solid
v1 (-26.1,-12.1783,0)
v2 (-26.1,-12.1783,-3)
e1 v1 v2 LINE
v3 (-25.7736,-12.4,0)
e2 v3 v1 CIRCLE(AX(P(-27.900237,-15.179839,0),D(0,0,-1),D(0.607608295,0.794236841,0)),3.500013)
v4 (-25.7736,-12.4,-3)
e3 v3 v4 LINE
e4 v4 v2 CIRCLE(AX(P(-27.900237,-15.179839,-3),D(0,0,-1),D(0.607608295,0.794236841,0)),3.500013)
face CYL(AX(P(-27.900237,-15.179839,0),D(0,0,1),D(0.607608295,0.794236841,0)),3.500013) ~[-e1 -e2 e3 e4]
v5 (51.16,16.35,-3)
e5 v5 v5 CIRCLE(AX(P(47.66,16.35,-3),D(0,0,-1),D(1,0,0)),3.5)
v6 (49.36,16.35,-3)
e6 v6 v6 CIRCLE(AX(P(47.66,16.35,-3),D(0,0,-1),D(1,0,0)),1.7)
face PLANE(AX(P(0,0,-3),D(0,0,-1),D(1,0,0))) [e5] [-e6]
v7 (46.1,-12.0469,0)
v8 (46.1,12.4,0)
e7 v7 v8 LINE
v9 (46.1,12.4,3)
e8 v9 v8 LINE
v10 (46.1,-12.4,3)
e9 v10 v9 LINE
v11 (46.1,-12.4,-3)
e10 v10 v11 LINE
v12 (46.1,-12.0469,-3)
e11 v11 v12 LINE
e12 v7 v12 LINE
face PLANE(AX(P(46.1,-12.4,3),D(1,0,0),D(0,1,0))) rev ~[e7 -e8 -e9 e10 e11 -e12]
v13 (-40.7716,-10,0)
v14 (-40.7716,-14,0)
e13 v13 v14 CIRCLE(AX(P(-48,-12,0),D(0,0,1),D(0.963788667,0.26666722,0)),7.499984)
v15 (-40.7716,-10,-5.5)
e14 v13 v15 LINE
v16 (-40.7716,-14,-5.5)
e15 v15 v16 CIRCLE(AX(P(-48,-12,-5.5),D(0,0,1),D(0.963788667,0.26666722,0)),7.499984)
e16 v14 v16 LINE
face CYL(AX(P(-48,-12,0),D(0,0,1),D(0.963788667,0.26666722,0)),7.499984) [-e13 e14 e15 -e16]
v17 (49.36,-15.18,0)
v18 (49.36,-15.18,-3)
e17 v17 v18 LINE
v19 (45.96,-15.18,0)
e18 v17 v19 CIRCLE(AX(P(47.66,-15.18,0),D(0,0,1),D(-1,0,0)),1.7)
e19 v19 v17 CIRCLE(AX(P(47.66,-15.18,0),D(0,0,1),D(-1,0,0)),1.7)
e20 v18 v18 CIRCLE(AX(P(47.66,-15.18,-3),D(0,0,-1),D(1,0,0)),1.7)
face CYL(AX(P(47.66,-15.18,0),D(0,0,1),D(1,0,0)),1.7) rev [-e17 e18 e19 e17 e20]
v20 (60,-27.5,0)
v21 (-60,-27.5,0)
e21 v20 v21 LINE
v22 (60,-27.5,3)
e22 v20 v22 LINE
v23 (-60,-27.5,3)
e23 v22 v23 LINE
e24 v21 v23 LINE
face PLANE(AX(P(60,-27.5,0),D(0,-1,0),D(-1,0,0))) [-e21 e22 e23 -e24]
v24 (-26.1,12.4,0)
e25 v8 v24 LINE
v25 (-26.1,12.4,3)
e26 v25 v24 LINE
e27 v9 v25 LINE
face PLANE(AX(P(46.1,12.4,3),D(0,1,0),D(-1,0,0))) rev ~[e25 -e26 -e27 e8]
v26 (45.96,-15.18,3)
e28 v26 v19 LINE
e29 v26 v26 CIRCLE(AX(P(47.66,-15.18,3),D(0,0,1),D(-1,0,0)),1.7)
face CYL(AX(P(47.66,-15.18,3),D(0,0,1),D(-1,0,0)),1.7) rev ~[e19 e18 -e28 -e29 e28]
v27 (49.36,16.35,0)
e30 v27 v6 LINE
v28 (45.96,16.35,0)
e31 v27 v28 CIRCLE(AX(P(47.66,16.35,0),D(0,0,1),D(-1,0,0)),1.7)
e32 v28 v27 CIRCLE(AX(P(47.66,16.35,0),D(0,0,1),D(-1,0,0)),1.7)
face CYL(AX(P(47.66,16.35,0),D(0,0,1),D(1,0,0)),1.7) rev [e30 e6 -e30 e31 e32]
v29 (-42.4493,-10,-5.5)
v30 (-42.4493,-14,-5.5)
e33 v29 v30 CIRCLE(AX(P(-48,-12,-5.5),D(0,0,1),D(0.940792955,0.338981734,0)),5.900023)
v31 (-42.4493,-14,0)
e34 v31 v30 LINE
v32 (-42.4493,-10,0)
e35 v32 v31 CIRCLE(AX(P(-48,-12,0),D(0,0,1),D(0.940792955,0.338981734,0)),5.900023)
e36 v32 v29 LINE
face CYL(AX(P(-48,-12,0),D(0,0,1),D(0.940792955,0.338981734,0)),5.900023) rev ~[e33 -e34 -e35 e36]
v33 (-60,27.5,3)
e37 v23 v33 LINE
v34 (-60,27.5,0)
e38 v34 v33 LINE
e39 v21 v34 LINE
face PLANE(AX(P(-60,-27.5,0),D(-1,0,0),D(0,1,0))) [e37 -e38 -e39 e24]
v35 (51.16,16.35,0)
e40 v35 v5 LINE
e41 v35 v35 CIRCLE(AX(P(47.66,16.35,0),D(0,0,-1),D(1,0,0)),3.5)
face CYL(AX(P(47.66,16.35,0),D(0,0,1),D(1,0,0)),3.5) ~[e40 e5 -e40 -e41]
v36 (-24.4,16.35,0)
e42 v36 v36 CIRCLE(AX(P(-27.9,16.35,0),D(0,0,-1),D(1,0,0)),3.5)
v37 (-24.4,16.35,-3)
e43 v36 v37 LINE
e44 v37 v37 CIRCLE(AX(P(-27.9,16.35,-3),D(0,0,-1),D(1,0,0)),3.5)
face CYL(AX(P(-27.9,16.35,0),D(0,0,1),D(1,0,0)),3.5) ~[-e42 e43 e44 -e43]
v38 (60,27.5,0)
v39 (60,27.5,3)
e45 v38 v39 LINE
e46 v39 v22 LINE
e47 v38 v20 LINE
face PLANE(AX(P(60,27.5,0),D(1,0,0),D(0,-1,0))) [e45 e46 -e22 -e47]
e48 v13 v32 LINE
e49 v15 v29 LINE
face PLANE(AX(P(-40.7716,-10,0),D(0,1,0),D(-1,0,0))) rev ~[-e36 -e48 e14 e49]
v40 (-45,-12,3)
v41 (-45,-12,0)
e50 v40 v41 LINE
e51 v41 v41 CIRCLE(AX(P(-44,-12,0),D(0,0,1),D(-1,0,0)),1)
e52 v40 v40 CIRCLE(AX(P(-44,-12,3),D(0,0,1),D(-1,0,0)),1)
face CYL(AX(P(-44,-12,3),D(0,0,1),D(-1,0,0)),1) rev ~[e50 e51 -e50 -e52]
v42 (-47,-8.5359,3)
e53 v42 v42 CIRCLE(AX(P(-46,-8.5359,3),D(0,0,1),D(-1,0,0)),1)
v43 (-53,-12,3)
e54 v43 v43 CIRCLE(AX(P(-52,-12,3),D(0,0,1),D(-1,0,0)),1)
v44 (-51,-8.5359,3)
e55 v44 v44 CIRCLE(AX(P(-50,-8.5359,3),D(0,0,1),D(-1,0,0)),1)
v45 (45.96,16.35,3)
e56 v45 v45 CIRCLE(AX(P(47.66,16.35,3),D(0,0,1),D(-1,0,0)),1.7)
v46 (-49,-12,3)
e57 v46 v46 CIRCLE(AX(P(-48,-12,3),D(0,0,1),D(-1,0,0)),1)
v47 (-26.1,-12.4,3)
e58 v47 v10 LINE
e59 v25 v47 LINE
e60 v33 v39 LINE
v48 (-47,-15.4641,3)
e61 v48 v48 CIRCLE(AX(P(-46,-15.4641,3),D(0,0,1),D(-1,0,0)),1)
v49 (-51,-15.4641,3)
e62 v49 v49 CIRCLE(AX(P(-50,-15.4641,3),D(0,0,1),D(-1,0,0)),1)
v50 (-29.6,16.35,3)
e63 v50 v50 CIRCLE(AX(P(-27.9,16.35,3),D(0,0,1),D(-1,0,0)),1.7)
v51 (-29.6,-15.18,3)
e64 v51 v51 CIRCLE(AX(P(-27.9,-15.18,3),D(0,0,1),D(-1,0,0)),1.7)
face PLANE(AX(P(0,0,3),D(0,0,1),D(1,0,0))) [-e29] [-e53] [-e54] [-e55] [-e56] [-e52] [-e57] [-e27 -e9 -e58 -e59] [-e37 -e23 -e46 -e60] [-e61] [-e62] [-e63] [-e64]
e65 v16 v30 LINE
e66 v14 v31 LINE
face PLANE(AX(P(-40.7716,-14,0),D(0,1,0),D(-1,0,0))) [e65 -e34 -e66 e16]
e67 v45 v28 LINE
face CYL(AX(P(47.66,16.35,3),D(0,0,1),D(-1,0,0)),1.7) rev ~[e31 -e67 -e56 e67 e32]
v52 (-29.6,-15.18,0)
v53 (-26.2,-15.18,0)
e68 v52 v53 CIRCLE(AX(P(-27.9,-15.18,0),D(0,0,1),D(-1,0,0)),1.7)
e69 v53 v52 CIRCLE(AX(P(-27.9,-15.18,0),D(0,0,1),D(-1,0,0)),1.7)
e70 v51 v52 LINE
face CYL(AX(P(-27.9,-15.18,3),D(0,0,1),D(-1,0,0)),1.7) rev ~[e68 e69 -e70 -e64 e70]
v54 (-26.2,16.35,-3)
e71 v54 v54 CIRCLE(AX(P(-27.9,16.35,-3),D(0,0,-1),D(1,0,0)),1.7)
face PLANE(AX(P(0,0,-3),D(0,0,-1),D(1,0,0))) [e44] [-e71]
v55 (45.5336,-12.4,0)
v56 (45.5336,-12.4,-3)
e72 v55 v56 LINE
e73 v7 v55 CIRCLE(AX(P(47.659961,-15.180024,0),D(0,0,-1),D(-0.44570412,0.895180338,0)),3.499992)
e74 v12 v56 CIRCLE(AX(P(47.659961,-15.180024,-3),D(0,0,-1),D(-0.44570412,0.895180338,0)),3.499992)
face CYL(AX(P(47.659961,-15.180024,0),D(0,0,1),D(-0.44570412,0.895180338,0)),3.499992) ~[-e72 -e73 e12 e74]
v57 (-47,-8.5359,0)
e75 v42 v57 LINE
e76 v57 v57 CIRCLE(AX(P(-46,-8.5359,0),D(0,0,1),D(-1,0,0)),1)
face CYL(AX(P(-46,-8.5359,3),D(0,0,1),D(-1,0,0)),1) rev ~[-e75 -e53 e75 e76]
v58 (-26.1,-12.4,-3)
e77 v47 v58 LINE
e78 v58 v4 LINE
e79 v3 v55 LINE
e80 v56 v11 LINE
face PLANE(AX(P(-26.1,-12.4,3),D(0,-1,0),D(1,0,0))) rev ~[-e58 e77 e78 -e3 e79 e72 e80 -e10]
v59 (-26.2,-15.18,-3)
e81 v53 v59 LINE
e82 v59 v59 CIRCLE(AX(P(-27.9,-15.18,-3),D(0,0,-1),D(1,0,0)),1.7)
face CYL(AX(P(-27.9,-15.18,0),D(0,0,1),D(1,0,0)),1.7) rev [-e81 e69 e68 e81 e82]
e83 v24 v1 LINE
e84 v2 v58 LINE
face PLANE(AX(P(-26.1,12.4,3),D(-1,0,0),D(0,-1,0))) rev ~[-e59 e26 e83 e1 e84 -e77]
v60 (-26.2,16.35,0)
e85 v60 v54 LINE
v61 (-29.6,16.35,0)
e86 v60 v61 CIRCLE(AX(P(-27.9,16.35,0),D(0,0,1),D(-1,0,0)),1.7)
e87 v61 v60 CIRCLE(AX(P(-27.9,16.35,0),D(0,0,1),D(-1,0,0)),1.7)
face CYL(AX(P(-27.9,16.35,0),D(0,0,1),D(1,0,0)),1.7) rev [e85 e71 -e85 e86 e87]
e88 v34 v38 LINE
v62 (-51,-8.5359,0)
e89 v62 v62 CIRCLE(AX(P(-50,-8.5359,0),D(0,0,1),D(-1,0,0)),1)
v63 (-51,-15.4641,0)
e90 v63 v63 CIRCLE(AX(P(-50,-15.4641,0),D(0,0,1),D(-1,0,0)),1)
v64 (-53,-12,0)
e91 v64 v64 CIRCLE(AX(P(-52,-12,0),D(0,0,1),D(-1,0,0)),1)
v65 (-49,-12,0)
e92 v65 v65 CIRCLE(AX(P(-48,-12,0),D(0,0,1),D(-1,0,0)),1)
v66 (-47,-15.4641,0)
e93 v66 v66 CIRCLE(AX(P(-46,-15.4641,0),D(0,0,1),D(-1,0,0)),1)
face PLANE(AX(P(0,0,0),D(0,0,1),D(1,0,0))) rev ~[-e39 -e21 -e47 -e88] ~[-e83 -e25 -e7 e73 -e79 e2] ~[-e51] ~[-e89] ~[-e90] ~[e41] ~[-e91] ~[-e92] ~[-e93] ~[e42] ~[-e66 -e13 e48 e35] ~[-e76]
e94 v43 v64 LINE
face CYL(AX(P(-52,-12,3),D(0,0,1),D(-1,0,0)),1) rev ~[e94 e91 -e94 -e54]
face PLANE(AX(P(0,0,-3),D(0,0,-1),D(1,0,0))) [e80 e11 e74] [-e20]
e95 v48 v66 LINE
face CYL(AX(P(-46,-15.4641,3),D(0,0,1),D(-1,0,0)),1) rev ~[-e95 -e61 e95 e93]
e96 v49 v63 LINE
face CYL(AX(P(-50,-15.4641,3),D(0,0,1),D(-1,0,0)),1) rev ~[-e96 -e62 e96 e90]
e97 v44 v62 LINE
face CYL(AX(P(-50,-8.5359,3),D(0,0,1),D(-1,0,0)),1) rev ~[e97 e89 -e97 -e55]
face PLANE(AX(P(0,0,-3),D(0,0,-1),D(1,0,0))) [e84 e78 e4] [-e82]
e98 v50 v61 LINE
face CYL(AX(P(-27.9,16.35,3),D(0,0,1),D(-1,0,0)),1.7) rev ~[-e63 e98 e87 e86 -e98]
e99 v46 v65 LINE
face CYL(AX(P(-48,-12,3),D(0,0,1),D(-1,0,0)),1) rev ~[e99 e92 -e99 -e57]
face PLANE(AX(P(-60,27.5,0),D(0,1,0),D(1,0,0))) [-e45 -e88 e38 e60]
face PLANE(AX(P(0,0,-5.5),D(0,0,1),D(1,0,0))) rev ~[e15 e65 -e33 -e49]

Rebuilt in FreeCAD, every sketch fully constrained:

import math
import FreeCAD as App
import Part
import Sketcher

V = App.Vector


def add_polygon(sketch, points):
    """Adds a closed chain of lines whose ends are joined by coincident constraints."""
    first, n = sketch.GeometryCount, len(points)
    for a, b in zip(points, points[1:] + points[:1]):
        sketch.addGeometry(Part.LineSegment(App.Vector(*a, 0), App.Vector(*b, 0)), False)
    for i in range(n):
        sketch.addConstraint(Sketcher.Constraint("Coincident", first + i, 2, first + (i + 1) % n, 1))

doc = App.newDocument("Part")
body = doc.addObject("PartDesign::Body", "Body")

# Sketch on XY plane
sketch1 = doc.addObject("Sketcher::SketchObject", "Sketch")
body.addObject(sketch1)
sketch1.AttachmentSupport = (doc.XY_Plane, [""])
sketch1.MapMode = "FlatFace"
add_polygon(sketch1, [(-60, -28), (60, -28), (60, 28), (-60, 28)])  # lines 0-3
sketch1.addConstraint(Sketcher.Constraint("Horizontal", 0))
sketch1.addConstraint(Sketcher.Constraint("Vertical", 1))
sketch1.addConstraint(Sketcher.Constraint("Horizontal", 2))
sketch1.addConstraint(Sketcher.Constraint("Vertical", 3))
sketch1.addConstraint(Sketcher.Constraint("Symmetric", 0, 2, 2, 2, -1, 1))
sketch1.addConstraint(Sketcher.Constraint("DistanceX", 0, 1, 0, 2, 120.0))
sketch1.addConstraint(Sketcher.Constraint("DistanceY", 1, 1, 1, 2, 55.0))
pad1 = doc.addObject("PartDesign::Pad", "Pad")
body.addObject(pad1)
pad1.Profile = sketch1
pad1.Length = 3

# Sketch on XY plane
sketch2 = doc.addObject("Sketcher::SketchObject", "Sketch001")
body.addObject(sketch2)
sketch2.AttachmentSupport = (doc.XY_Plane, [""])
sketch2.MapMode = "FlatFace"
sketch2.AttachmentOffset = App.Placement(V(0, 0, 3), App.Rotation())
add_polygon(sketch2, [(-26, 12), (-26, -12), (46, -12), (46, 12)])  # lines 0-3
sketch2.addConstraint(Sketcher.Constraint("Vertical", 0))
sketch2.addConstraint(Sketcher.Constraint("Horizontal", 1))
sketch2.addConstraint(Sketcher.Constraint("Vertical", 2))
sketch2.addConstraint(Sketcher.Constraint("Horizontal", 3))
sketch2.addConstraint(Sketcher.Constraint("DistanceX", 1, 1, 1, 2, 72.2))
sketch2.addConstraint(Sketcher.Constraint("DistanceY", 0, 2, 0, 1, 24.8))
sketch2.addConstraint(Sketcher.Constraint("DistanceX", 0, 2, -1, 1, 26.1))
sketch2.addConstraint(Sketcher.Constraint("DistanceY", 0, 2, -1, 1, 12.4))
pocket1 = doc.addObject("PartDesign::Pocket", "Pocket")
body.addObject(pocket1)
pocket1.Profile = sketch2
pocket1.Type = "ThroughAll"

# Sketch on XY plane
sketch3 = doc.addObject("Sketcher::SketchObject", "Sketch002")
body.addObject(sketch3)
sketch3.AttachmentSupport = (doc.XY_Plane, [""])
sketch3.MapMode = "FlatFace"
sketch3.AttachmentOffset = App.Placement(V(0, 0, 3), App.Rotation())
sketch3.addGeometry(Part.Circle(V(-27.9, 16.4, 0), V(0, 0, 1), 1.7), False)
sketch3.addGeometry(Part.Circle(V(47.7, 16.4, 0), V(0, 0, 1), 1.7), False)
sketch3.addGeometry(Part.Circle(V(-27.9, -15.2, 0), V(0, 0, 1), 1.7), False)
sketch3.addGeometry(Part.Circle(V(47.7, -15.2, 0), V(0, 0, 1), 1.7), False)
sketch3.addConstraint(Sketcher.Constraint("Equal", 0, 1))
sketch3.addConstraint(Sketcher.Constraint("Equal", 1, 2))
sketch3.addConstraint(Sketcher.Constraint("Equal", 2, 3))
sketch3.addConstraint(Sketcher.Constraint("Horizontal", 0, 3, 1, 3))
sketch3.addConstraint(Sketcher.Constraint("Horizontal", 2, 3, 3, 3))
sketch3.addConstraint(Sketcher.Constraint("Vertical", 0, 3, 2, 3))
sketch3.addConstraint(Sketcher.Constraint("Vertical", 1, 3, 3, 3))
sketch3.addConstraint(Sketcher.Constraint("Diameter", 0, 3.4))
sketch3.addConstraint(Sketcher.Constraint("DistanceX", 0, 3, -1, 1, 27.9))
sketch3.addConstraint(Sketcher.Constraint("DistanceY", -1, 1, 0, 3, 16.35))
sketch3.addConstraint(Sketcher.Constraint("DistanceX", 0, 3, 1, 3, 75.56))
sketch3.addConstraint(Sketcher.Constraint("DistanceY", 2, 3, 0, 3, 31.53))
pocket2 = doc.addObject("PartDesign::Pocket", "Pocket001")
body.addObject(pocket2)
pocket2.Profile = sketch3
pocket2.Type = "ThroughAll"

# Sketch on XY plane
sketch4 = doc.addObject("Sketcher::SketchObject", "Sketch003")
body.addObject(sketch4)
sketch4.AttachmentSupport = (doc.XY_Plane, [""])
sketch4.MapMode = "FlatFace"
sketch4.AttachmentOffset = App.Placement(V(0, 0, 3), App.Rotation())
sketch4.addGeometry(Part.Circle(V(-48, -12, 0), V(0, 0, 1), 1), False)
sketch4.addGeometry(Part.Circle(V(-44, -12, 0), V(0, 0, 1), 1), False)
sketch4.addGeometry(Part.Circle(V(-46, -8.5, 0), V(0, 0, 1), 1), False)
sketch4.addGeometry(Part.Circle(V(-50, -8.5, 0), V(0, 0, 1), 1), False)
sketch4.addGeometry(Part.Circle(V(-52, -12, 0), V(0, 0, 1), 1), False)
sketch4.addGeometry(Part.Circle(V(-50, -15.5, 0), V(0, 0, 1), 1), False)
sketch4.addGeometry(Part.Circle(V(-46, -15.5, 0), V(0, 0, 1), 1), False)
sketch4.addConstraint(Sketcher.Constraint("Equal", 0, 1))
sketch4.addConstraint(Sketcher.Constraint("Equal", 1, 2))
sketch4.addConstraint(Sketcher.Constraint("Equal", 2, 3))
sketch4.addConstraint(Sketcher.Constraint("Equal", 3, 4))
sketch4.addConstraint(Sketcher.Constraint("Equal", 4, 5))
sketch4.addConstraint(Sketcher.Constraint("Equal", 5, 6))
sketch4.addConstraint(Sketcher.Constraint("Horizontal", 0, 3, 1, 3))
sketch4.addConstraint(Sketcher.Constraint("Horizontal", 2, 3, 3, 3))
sketch4.addConstraint(Sketcher.Constraint("Horizontal", 1, 3, 4, 3))
sketch4.addConstraint(Sketcher.Constraint("Horizontal", 5, 3, 6, 3))
sketch4.addConstraint(Sketcher.Constraint("Vertical", 3, 3, 5, 3))
sketch4.addConstraint(Sketcher.Constraint("Vertical", 2, 3, 6, 3))
sketch4.addConstraint(Sketcher.Constraint("Diameter", 0, 2.0))
sketch4.addConstraint(Sketcher.Constraint("DistanceX", 0, 3, -1, 1, 48.0))
sketch4.addConstraint(Sketcher.Constraint("DistanceY", 0, 3, -1, 1, 12.0))
sketch4.addConstraint(Sketcher.Constraint("DistanceX", 0, 3, 1, 3, 4.0))
sketch4.addConstraint(Sketcher.Constraint("DistanceX", 0, 3, 2, 3, 2.0))
sketch4.addConstraint(Sketcher.Constraint("DistanceX", 3, 3, 0, 3, 2.0))
sketch4.addConstraint(Sketcher.Constraint("DistanceX", 4, 3, 3, 3, 2.0))
sketch4.addConstraint(Sketcher.Constraint("DistanceY", 2, 3, -1, 1, 8.536))
sketch4.addConstraint(Sketcher.Constraint("DistanceY", 5, 3, -1, 1, 15.464))
pocket3 = doc.addObject("PartDesign::Pocket", "Pocket002")
body.addObject(pocket3)
pocket3.Profile = sketch4
pocket3.Type = "ThroughAll"

# Sketch on XY plane
sketch5 = doc.addObject("Sketcher::SketchObject", "Sketch004")
body.addObject(sketch5)
sketch5.AttachmentSupport = (doc.XY_Plane, [""])
sketch5.MapMode = "FlatFace"
sketch5.addGeometry(Part.LineSegment(V(-42.4, -10, 0), V(-40.8, -10, 0)), False)
sketch5.addGeometry(Part.ArcOfCircle(Part.Circle(V(-48, -12, 0), V(0, 0, 1), 7.5), math.radians(15), math.radians(345)), False)
sketch5.addGeometry(Part.LineSegment(V(-40.8, -14, 0), V(-42.4, -14, 0)), False)
sketch5.addGeometry(Part.ArcOfCircle(Part.Circle(V(-48, -12, 0), V(0, 0, 1), 5.9), math.radians(20), math.radians(340)), False)
sketch5.addConstraint(Sketcher.Constraint("Coincident", 0, 2, 1, 1))
sketch5.addConstraint(Sketcher.Constraint("Coincident", 1, 2, 2, 1))
sketch5.addConstraint(Sketcher.Constraint("Coincident", 2, 2, 3, 2))
sketch5.addConstraint(Sketcher.Constraint("Coincident", 3, 1, 0, 1))
sketch5.addConstraint(Sketcher.Constraint("Horizontal", 0))
sketch5.addConstraint(Sketcher.Constraint("Horizontal", 2))
sketch5.addConstraint(Sketcher.Constraint("Coincident", 3, 3, 1, 3))
sketch5.addConstraint(Sketcher.Constraint("Vertical", 0, 2, 1, 2))
sketch5.addConstraint(Sketcher.Constraint("Radius", 1, 7.5))
sketch5.addConstraint(Sketcher.Constraint("Radius", 3, 5.9))
sketch5.addConstraint(Sketcher.Constraint("DistanceX", 1, 3, -1, 1, 48.0))
sketch5.addConstraint(Sketcher.Constraint("DistanceY", 1, 3, -1, 1, 12.0))
sketch5.addConstraint(Sketcher.Constraint("DistanceY", 1, 3, 0, 2, 2.0))
pad2 = doc.addObject("PartDesign::Pad", "Pad001")
body.addObject(pad2)
pad2.Profile = sketch5
pad2.Length = 5.5
pad2.Reversed = True

# Sketch on XY plane
sketch6 = doc.addObject("Sketcher::SketchObject", "Sketch005")
body.addObject(sketch6)
sketch6.AttachmentSupport = (doc.XY_Plane, [""])
sketch6.MapMode = "FlatFace"
sketch6.addGeometry(Part.LineSegment(V(46.1, -12.4, 0), V(46.1, -12.05, 0)), False)
sketch6.addGeometry(Part.ArcOfCircle(Part.Circle(V(47.66, -15.18, 0), V(0, 0, 1), 3.5), math.radians(127), math.radians(476)), False)
sketch6.addGeometry(Part.LineSegment(V(45.53, -12.4, 0), V(46.1, -12.4, 0)), False)
sketch6.addGeometry(Part.Circle(V(47.66, -15.18, 0), V(0, 0, 1), 1.7), False)
sketch6.addGeometry(Part.ArcOfCircle(Part.Circle(V(-27.9, -15.18, 0), V(0, 0, 1), 3.5), math.radians(59), math.radians(413)), False)
sketch6.addGeometry(Part.LineSegment(V(-26.1, -12.18, 0), V(-26.1, -12.4, 0)), False)
sketch6.addGeometry(Part.LineSegment(V(-26.1, -12.4, 0), V(-25.77, -12.4, 0)), False)
sketch6.addGeometry(Part.Circle(V(-27.9, -15.18, 0), V(0, 0, 1), 1.7), False)
sketch6.addGeometry(Part.Circle(V(47.66, 16.35, 0), V(0, 0, 1), 3.5), False)
sketch6.addGeometry(Part.Circle(V(47.66, 16.35, 0), V(0, 0, 1), 1.7), False)
sketch6.addGeometry(Part.Circle(V(-27.9, 16.35, 0), V(0, 0, 1), 3.5), False)
sketch6.addGeometry(Part.Circle(V(-27.9, 16.35, 0), V(0, 0, 1), 1.7), False)
sketch6.addConstraint(Sketcher.Constraint("Coincident", 0, 2, 1, 2))
sketch6.addConstraint(Sketcher.Constraint("Coincident", 1, 1, 2, 1))
sketch6.addConstraint(Sketcher.Constraint("Coincident", 2, 2, 0, 1))
sketch6.addConstraint(Sketcher.Constraint("Coincident", 4, 1, 5, 1))
sketch6.addConstraint(Sketcher.Constraint("Coincident", 5, 2, 6, 1))
sketch6.addConstraint(Sketcher.Constraint("Coincident", 6, 2, 4, 2))
sketch6.addConstraint(Sketcher.Constraint("Vertical", 0))
sketch6.addConstraint(Sketcher.Constraint("Horizontal", 2))
sketch6.addConstraint(Sketcher.Constraint("Vertical", 5))
sketch6.addConstraint(Sketcher.Constraint("Horizontal", 6))
sketch6.addConstraint(Sketcher.Constraint("Coincident", 3, 3, 1, 3))
sketch6.addConstraint(Sketcher.Constraint("Coincident", 7, 3, 4, 3))
sketch6.addConstraint(Sketcher.Constraint("Coincident", 9, 3, 8, 3))
sketch6.addConstraint(Sketcher.Constraint("Coincident", 11, 3, 10, 3))
sketch6.addConstraint(Sketcher.Constraint("Equal", 1, 4))
sketch6.addConstraint(Sketcher.Constraint("Equal", 3, 7))
sketch6.addConstraint(Sketcher.Constraint("Equal", 4, 8))
sketch6.addConstraint(Sketcher.Constraint("Equal", 7, 9))
sketch6.addConstraint(Sketcher.Constraint("Equal", 8, 10))
sketch6.addConstraint(Sketcher.Constraint("Equal", 9, 11))
sketch6.addConstraint(Sketcher.Constraint("Horizontal", 3, 3, 4, 3))
sketch6.addConstraint(Sketcher.Constraint("Horizontal", 9, 3, 10, 3))
sketch6.addConstraint(Sketcher.Constraint("Horizontal", 2, 2, 5, 2))
sketch6.addConstraint(Sketcher.Constraint("Vertical", 3, 3, 8, 3))
sketch6.addConstraint(Sketcher.Constraint("Vertical", 7, 3, 10, 3))
sketch6.addConstraint(Sketcher.Constraint("Diameter", 8, 7.0))
sketch6.addConstraint(Sketcher.Constraint("Diameter", 3, 3.4))
sketch6.addConstraint(Sketcher.Constraint("DistanceX", 4, 3, 0, 2, 74.0))
sketch6.addConstraint(Sketcher.Constraint("DistanceX", 4, 3, -1, 1, 27.9))
sketch6.addConstraint(Sketcher.Constraint("DistanceY", 1, 1, -1, 1, 12.4))
sketch6.addConstraint(Sketcher.Constraint("DistanceX", 4, 1, -1, 1, 26.1))
sketch6.addConstraint(Sketcher.Constraint("DistanceY", 0, 1, 0, 2, 0.353))
sketch6.addConstraint(Sketcher.Constraint("DistanceX", -1, 1, 1, 3, 47.66))
sketch6.addConstraint(Sketcher.Constraint("DistanceY", -1, 1, 8, 3, 16.35))
pad3 = doc.addObject("PartDesign::Pad", "Pad002")
body.addObject(pad3)
pad3.Profile = sketch6
pad3.Length = 3
pad3.Reversed = True

doc.recompute()
